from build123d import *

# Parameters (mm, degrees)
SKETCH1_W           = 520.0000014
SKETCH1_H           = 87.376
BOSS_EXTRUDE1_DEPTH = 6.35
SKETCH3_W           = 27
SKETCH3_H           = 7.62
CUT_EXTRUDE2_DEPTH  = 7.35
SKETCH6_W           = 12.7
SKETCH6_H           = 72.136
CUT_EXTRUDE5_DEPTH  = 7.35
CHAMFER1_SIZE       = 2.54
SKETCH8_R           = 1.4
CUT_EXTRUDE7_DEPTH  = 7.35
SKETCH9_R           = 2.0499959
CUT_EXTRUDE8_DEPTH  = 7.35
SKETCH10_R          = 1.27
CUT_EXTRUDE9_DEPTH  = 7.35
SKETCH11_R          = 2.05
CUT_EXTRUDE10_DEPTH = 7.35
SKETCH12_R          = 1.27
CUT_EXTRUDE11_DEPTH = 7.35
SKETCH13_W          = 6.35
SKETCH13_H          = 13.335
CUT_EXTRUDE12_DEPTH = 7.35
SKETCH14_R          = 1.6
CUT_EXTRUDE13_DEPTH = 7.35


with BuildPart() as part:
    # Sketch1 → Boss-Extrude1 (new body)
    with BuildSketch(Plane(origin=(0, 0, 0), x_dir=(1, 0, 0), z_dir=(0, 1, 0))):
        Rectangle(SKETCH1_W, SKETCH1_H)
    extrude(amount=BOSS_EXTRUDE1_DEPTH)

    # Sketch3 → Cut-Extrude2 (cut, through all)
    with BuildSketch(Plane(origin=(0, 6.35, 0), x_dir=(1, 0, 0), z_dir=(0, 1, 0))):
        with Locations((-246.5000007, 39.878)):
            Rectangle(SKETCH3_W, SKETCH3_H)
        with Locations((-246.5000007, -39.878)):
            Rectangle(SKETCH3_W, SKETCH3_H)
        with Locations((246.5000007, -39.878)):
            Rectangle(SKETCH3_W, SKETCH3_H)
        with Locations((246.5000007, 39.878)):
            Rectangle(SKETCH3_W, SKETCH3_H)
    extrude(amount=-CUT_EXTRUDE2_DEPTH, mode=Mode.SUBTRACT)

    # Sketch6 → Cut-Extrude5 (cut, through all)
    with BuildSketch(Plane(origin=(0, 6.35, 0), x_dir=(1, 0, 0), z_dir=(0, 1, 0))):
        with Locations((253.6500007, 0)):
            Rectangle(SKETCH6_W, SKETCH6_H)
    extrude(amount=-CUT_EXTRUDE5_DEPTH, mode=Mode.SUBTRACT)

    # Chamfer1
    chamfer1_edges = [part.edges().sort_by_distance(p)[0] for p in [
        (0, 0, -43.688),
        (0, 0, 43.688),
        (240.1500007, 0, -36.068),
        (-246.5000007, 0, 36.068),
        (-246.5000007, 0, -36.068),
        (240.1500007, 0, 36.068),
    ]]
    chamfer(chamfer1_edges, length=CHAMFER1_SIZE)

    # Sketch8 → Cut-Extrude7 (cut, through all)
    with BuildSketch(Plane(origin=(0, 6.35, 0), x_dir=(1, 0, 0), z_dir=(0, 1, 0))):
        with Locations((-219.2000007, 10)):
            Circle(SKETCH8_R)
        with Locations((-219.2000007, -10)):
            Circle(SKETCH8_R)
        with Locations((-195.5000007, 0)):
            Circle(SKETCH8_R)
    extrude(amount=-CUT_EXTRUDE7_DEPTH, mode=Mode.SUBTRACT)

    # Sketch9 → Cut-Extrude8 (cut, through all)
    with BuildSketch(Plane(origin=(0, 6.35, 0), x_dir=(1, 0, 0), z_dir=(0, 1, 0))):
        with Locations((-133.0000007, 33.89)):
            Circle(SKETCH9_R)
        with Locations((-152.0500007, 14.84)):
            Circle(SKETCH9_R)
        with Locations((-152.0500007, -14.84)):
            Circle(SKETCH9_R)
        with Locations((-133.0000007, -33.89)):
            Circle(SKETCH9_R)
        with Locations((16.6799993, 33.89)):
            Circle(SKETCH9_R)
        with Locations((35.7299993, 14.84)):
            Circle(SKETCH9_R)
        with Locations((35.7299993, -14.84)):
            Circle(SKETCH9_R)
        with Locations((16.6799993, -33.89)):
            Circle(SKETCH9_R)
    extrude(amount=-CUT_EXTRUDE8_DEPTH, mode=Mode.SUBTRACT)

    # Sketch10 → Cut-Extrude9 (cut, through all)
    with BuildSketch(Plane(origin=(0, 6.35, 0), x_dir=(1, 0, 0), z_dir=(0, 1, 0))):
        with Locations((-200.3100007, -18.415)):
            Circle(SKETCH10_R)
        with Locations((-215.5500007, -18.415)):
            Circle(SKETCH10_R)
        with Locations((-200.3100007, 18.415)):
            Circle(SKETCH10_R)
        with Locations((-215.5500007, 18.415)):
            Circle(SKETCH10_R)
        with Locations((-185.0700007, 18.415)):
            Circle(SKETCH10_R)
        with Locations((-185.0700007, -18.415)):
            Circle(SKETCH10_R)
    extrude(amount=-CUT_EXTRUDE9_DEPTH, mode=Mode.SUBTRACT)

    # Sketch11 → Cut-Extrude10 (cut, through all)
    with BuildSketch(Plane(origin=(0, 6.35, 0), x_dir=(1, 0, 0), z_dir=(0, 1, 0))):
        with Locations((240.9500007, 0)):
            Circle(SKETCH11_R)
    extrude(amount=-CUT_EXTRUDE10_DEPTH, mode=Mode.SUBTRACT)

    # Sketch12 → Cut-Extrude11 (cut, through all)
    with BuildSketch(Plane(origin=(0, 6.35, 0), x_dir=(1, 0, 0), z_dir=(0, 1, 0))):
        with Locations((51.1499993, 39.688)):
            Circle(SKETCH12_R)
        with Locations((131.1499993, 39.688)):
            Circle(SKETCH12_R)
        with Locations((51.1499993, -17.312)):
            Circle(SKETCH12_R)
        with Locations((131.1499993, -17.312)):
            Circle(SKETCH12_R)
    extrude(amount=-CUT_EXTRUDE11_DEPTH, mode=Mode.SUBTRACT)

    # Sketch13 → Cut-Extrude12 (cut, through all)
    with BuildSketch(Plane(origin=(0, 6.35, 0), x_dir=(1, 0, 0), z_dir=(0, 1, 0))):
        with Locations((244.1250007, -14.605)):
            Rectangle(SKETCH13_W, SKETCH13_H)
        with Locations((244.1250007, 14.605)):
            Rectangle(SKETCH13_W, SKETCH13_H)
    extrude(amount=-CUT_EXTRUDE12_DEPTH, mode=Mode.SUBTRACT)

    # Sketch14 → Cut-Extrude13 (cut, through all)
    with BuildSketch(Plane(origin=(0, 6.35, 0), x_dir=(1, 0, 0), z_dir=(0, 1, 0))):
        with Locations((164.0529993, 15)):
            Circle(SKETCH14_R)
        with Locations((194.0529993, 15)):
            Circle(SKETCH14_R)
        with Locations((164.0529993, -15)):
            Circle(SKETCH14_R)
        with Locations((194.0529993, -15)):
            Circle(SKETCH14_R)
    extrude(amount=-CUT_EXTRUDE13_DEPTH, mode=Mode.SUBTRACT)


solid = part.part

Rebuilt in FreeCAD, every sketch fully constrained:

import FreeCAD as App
import Part
import Sketcher
Q = App.Units.Quantity


def edges_at(feature, points):
    """Names of the edges that pass closest to the given points."""
    edges = feature.Shape.Edges
    near = lambda p: min(range(len(edges)), key=lambda i: edges[i].distToShape(Part.Vertex(*p))[0])
    return sorted({f"Edge{near(p) + 1}" for p in points})


def add_polygon(sketch, points):
    """Adds a closed chain of lines whose ends are joined by coincident constraints."""
    first, n = sketch.GeometryCount, len(points)
    for a, b in zip(points, points[1:] + points[:1]):
        sketch.addGeometry(Part.LineSegment(App.Vector(*a, 0), App.Vector(*b, 0)), False)
    for i in range(n):
        sketch.addConstraint(Sketcher.Constraint("Coincident", first + i, 2, first + (i + 1) % n, 1))

doc = App.newDocument("Part")
body = doc.addObject("PartDesign::Body", "Body")

# Sketch on XZ plane
sketch1 = body.newObject("Sketcher::SketchObject", "Sketch")
sketch1.AttachmentSupport = (doc.getObject("XZ_Plane"), [""])
sketch1.MapMode = "FlatFace"
add_polygon(sketch1, [(-260, -44), (-260, 44), (260, 44), (260, -44)])  # lines 0-3
sketch1.addConstraint([
    Sketcher.Constraint("Vertical", 0),
    Sketcher.Constraint("Horizontal", 1),
    Sketcher.Constraint("Vertical", 2),
    Sketcher.Constraint("Horizontal", 3),
    Sketcher.Constraint("Symmetric", 0, 2, 2, 2, -1, 1),
    Sketcher.Constraint("DistanceY", 0, 1, 0, 2, Q("3.44 in")),
    Sketcher.Constraint("DistanceX", 1, 1, 1, 2, Q("520.000001 mm")),
])
pad1 = body.newObject("PartDesign::Pad", "Pad")
pad1.Profile = sketch1
pad1.Length = Q("0.25 in")
pad1.Reversed = True

# Sketch on XZ plane
sketch2 = body.newObject("Sketcher::SketchObject", "Sketch001")
sketch2.AttachmentSupport = (doc.getObject("XZ_Plane"), [""])
sketch2.MapMode = "FlatFace"
sketch2.AttachmentOffset = App.Placement(App.Vector(0, 0, -0.25 * 25.4), App.Rotation())
add_polygon(sketch2, [(-260, -44), (-260, -36), (-233, -36), (-233, -44)])  # lines 0-3
add_polygon(sketch2, [(-260, 36), (-260, 44), (-233, 44), (-233, 36)])  # lines 4-7
add_polygon(sketch2, [(233, 36), (233, 44), (260, 44), (260, 36)])  # lines 8-11
add_polygon(sketch2, [(233, -44), (233, -36), (260, -36), (260, -44)])  # lines 12-15
sketch2.addConstraint([
    Sketcher.Constraint("Vertical", 0),
    Sketcher.Constraint("Horizontal", 1),
    Sketcher.Constraint("Vertical", 2),
    Sketcher.Constraint("Horizontal", 3),
    Sketcher.Constraint("Vertical", 4),
    Sketcher.Constraint("Horizontal", 5),
    Sketcher.Constraint("Vertical", 6),
    Sketcher.Constraint("Horizontal", 7),
    Sketcher.Constraint("Vertical", 8),
    Sketcher.Constraint("Horizontal", 9),
    Sketcher.Constraint("Vertical", 10),
    Sketcher.Constraint("Horizontal", 11),
    Sketcher.Constraint("Vertical", 12),
    Sketcher.Constraint("Horizontal", 13),
    Sketcher.Constraint("Vertical", 14),
    Sketcher.Constraint("Horizontal", 15),
    Sketcher.Constraint("Symmetric", 2, 2, 8, 2, -1, 1),
    Sketcher.Constraint("Symmetric", 0, 2, 10, 2, -1, 1),
    Sketcher.Constraint("Symmetric", 6, 2, 12, 2, -1, 1),
    Sketcher.Constraint("Symmetric", 4, 2, 14, 2, -1, 1),
    Sketcher.Constraint("Symmetric", 5, 2, 8, 2, -2),
    Sketcher.Constraint("Symmetric", 7, 2, 10, 2, -2),
    Sketcher.Constraint("DistanceY", 0, 1, 0, 2, Q("0.3 in")),
    Sketcher.Constraint("DistanceY", 0, 2, -1, 1, Q("1.42 in")),
    Sketcher.Constraint("DistanceX", 1, 1, 1, 2, Q("27 mm")),
    Sketcher.Constraint("DistanceX", 0, 2, -1, 1, Q("260.000001 mm")),
])
pocket1 = body.newObject("PartDesign::Pocket", "Pocket")
pocket1.Profile = sketch2
pocket1.Type = "ThroughAll"
pocket1.Reversed = True

# Sketch on XZ plane
sketch3 = body.newObject("Sketcher::SketchObject", "Sketch002")
sketch3.AttachmentSupport = (doc.getObject("XZ_Plane"), [""])
sketch3.MapMode = "FlatFace"
sketch3.AttachmentOffset = App.Placement(App.Vector(0, 0, -0.25 * 25.4), App.Rotation())
add_polygon(sketch3, [(247, -36), (247, 36), (260, 36), (260, -36)])  # lines 0-3
sketch3.addConstraint([
    Sketcher.Constraint("Vertical", 0),
    Sketcher.Constraint("Horizontal", 1),
    Sketcher.Constraint("Vertical", 2),
    Sketcher.Constraint("Horizontal", 3),
    Sketcher.Constraint("DistanceX", 1, 1, 1, 2, Q("0.5 in")),
    Sketcher.Constraint("DistanceY", 0, 1, 0, 2, Q("2.84 in")),
    Sketcher.Constraint("DistanceY", -1, 1, 0, 2, Q("1.42 in")),
    Sketcher.Constraint("DistanceX", -1, 1, 0, 2, Q("247.300001 mm")),
])
pocket2 = body.newObject("PartDesign::Pocket", "Pocket001")
pocket2.Profile = sketch3
pocket2.Type = "ThroughAll"
pocket2.Reversed = True
doc.recompute()

chamfer = body.newObject("PartDesign::Chamfer", "Chamfer")
chamfer.Base = (pocket2, edges_at(pocket2, [
    (0, 0, -43.688),
    (0, 0, 43.688),
    (240.15, 0, -36.068),
    (-246.5, 0, 36.068),
    (-246.5, 0, -36.068),
    (240.15, 0, 36.068),
]))
chamfer.Size = Q("0.1 in")

# Sketch on XZ plane
sketch4 = body.newObject("Sketcher::SketchObject", "Sketch003")
sketch4.AttachmentSupport = (doc.getObject("XZ_Plane"), [""])
sketch4.MapMode = "FlatFace"
sketch4.AttachmentOffset = App.Placement(App.Vector(0, 0, -0.25 * 25.4), App.Rotation())
sketch4.addGeometry([
    Part.Circle(App.Vector(-219.2, -10, 0), App.Vector(0, 0, 1), 1.4),
    Part.Circle(App.Vector(-219.2, 10, 0), App.Vector(0, 0, 1), 1.4),
    Part.Circle(App.Vector(-195.5, 0, 0), App.Vector(0, 0, 1), 1.4),
], False)
sketch4.addConstraint([
    Sketcher.Constraint("Equal", 0, 1),
    Sketcher.Constraint("Equal", 1, 2),
    Sketcher.Constraint("Symmetric", 0, 3, 1, 3, -1),
    Sketcher.Constraint("PointOnObject", 2, 3, -1),
    Sketcher.Constraint("Diameter", 0, Q("2.8 mm")),
    Sketcher.Constraint("DistanceX", 0, 3, -1, 1, Q("219.200001 mm")),
    Sketcher.Constraint("DistanceY", 0, 3, -1, 1, Q("10 mm")),
    Sketcher.Constraint("DistanceX", 2, 3, -1, 1, Q("195.500001 mm")),
])
pocket3 = body.newObject("PartDesign::Pocket", "Pocket002")
pocket3.Profile = sketch4
pocket3.Type = "ThroughAll"
pocket3.Reversed = True

# Sketch on XZ plane
sketch5 = body.newObject("Sketcher::SketchObject", "Sketch004")
sketch5.AttachmentSupport = (doc.getObject("XZ_Plane"), [""])
sketch5.MapMode = "FlatFace"
sketch5.AttachmentOffset = App.Placement(App.Vector(0, 0, -0.25 * 25.4), App.Rotation())
sketch5.addGeometry([
    Part.Circle(App.Vector(-133, -33.9, 0), App.Vector(0, 0, 1), 2),  # 0
    Part.Circle(App.Vector(-152.1, -14.8, 0), App.Vector(0, 0, 1), 2),  # 1
    Part.Circle(App.Vector(-152.1, 14.8, 0), App.Vector(0, 0, 1), 2),  # 2
    Part.Circle(App.Vector(-133, 33.9, 0), App.Vector(0, 0, 1), 2),  # 3
    Part.Circle(App.Vector(16.7, -33.9, 0), App.Vector(0, 0, 1), 2),  # 4
    Part.Circle(App.Vector(35.7, -14.8, 0), App.Vector(0, 0, 1), 2),  # 5
    Part.Circle(App.Vector(35.7, 14.8, 0), App.Vector(0, 0, 1), 2),  # 6
    Part.Circle(App.Vector(16.7, 33.9, 0), App.Vector(0, 0, 1), 2),  # 7
], False)
sketch5.addConstraint([
    Sketcher.Constraint("Equal", 0, 1),
    Sketcher.Constraint("Equal", 1, 2),
    Sketcher.Constraint("Equal", 2, 3),
    Sketcher.Constraint("Equal", 3, 4),
    Sketcher.Constraint("Equal", 4, 5),
    Sketcher.Constraint("Equal", 5, 6),
    Sketcher.Constraint("Equal", 6, 7),
    Sketcher.Constraint("Symmetric", 1, 3, 2, 3, -1),
    Sketcher.Constraint("Symmetric", 0, 3, 3, 3, -1),
    Sketcher.Constraint("Symmetric", 5, 3, 6, 3, -1),
    Sketcher.Constraint("Symmetric", 4, 3, 7, 3, -1),
    Sketcher.Constraint("Horizontal", 0, 3, 4, 3),
    Sketcher.Constraint("Horizontal", 1, 3, 5, 3),
    Sketcher.Constraint("DistanceX", 1, 3, 0, 3, Q("0.75 in")),
    Sketcher.Constraint("DistanceY", 0, 3, 1, 3, Q("0.75 in")),
    Sketcher.Constraint("DistanceX", 4, 3, 5, 3, Q("0.75 in")),
    Sketcher.Constraint("Diameter", 0, Q("4.099992 mm")),
    Sketcher.Constraint("DistanceX", 0, 3, -1, 1, Q("133.000001 mm")),
    Sketcher.Constraint("DistanceY", 0, 3, -1, 1, Q("33.89 mm")),
    Sketcher.Constraint("DistanceX", -1, 1, 4, 3, Q("16.679999 mm")),
])
pocket4 = body.newObject("PartDesign::Pocket", "Pocket003")
pocket4.Profile = sketch5
pocket4.Type = "ThroughAll"
pocket4.Reversed = True

# Sketch on XZ plane
sketch6 = body.newObject("Sketcher::SketchObject", "Sketch005")
sketch6.AttachmentSupport = (doc.getObject("XZ_Plane"), [""])
sketch6.MapMode = "FlatFace"
sketch6.AttachmentOffset = App.Placement(App.Vector(0, 0, -0.25 * 25.4), App.Rotation())
sketch6.addGeometry([
    Part.Circle(App.Vector(-200.3, 18.4, 0), App.Vector(0, 0, 1), 1.3),  # 0
    Part.Circle(App.Vector(-215.6, 18.4, 0), App.Vector(0, 0, 1), 1.3),  # 1
    Part.Circle(App.Vector(-200.3, -18.4, 0), App.Vector(0, 0, 1), 1.3),  # 2
    Part.Circle(App.Vector(-215.6, -18.4, 0), App.Vector(0, 0, 1), 1.3),  # 3
    Part.Circle(App.Vector(-185.1, -18.4, 0), App.Vector(0, 0, 1), 1.3),  # 4
    Part.Circle(App.Vector(-185.1, 18.4, 0), App.Vector(0, 0, 1), 1.3),  # 5
], False)
sketch6.addConstraint([
    Sketcher.Constraint("Equal", 0, 1),
    Sketcher.Constraint("Equal", 1, 2),
    Sketcher.Constraint("Equal", 2, 3),
    Sketcher.Constraint("Equal", 3, 4),
    Sketcher.Constraint("Equal", 4, 5),
    Sketcher.Constraint("Symmetric", 0, 3, 2, 3, -1),
    Sketcher.Constraint("Symmetric", 1, 3, 3, 3, -1),
    Sketcher.Constraint("Symmetric", 4, 3, 5, 3, -1),
    Sketcher.Constraint("Horizontal", 0, 3, 1, 3),
    Sketcher.Constraint("Horizontal", 3, 3, 4, 3),
    Sketcher.Constraint("Diameter", 0, Q("0.1 in")),
    Sketcher.Constraint("DistanceX", 1, 3, 0, 3, Q("0.6 in")),
    Sketcher.Constraint("DistanceX", 2, 3, 4, 3, Q("0.6 in")),
    Sketcher.Constraint("DistanceY", 2, 3, 0, 3, Q("1.45 in")),
    Sketcher.Constraint("DistanceX", 0, 3, -1, 1, Q("200.310001 mm")),
])
pocket5 = body.newObject("PartDesign::Pocket", "Pocket004")
pocket5.Profile = sketch6
pocket5.Type = "ThroughAll"
pocket5.Reversed = True

# Sketch on XZ plane
sketch7 = body.newObject("Sketcher::SketchObject", "Sketch006")
sketch7.AttachmentSupport = (doc.getObject("XZ_Plane"), [""])
sketch7.MapMode = "FlatFace"
sketch7.AttachmentOffset = App.Placement(App.Vector(0, 0, -0.25 * 25.4), App.Rotation())
sketch7.addGeometry(Part.Circle(App.Vector(241, 0, 0), App.Vector(0, 0, 1), 2), False)
sketch7.addConstraint([
    Sketcher.Constraint("PointOnObject", 0, 3, -1),
    Sketcher.Constraint("Diameter", 0, Q("4.1 mm")),
    Sketcher.Constraint("DistanceX", -1, 1, 0, 3, Q("240.950001 mm")),
])
pocket6 = body.newObject("PartDesign::Pocket", "Pocket005")
pocket6.Profile = sketch7
pocket6.Type = "ThroughAll"
pocket6.Reversed = True

# Sketch on XZ plane
sketch8 = body.newObject("Sketcher::SketchObject", "Sketch007")
sketch8.AttachmentSupport = (doc.getObject("XZ_Plane"), [""])
sketch8.MapMode = "FlatFace"
sketch8.AttachmentOffset = App.Placement(App.Vector(0, 0, -0.25 * 25.4), App.Rotation())
sketch8.addGeometry([
    Part.Circle(App.Vector(51.1, -39.7, 0), App.Vector(0, 0, 1), 1.3),
    Part.Circle(App.Vector(131.1, -39.7, 0), App.Vector(0, 0, 1), 1.3),
    Part.Circle(App.Vector(51.1, 17.3, 0), App.Vector(0, 0, 1), 1.3),
    Part.Circle(App.Vector(131.1, 17.3, 0), App.Vector(0, 0, 1), 1.3),
], False)
sketch8.addConstraint([
    Sketcher.Constraint("Equal", 0, 1),
    Sketcher.Constraint("Equal", 1, 2),
    Sketcher.Constraint("Equal", 2, 3),
    Sketcher.Constraint("Horizontal", 0, 3, 1, 3),
    Sketcher.Constraint("Horizontal", 2, 3, 3, 3),
    Sketcher.Constraint("Vertical", 0, 3, 2, 3),
    Sketcher.Constraint("Vertical", 1, 3, 3, 3),
    Sketcher.Constraint("Diameter", 0, Q("0.1 in")),
    Sketcher.Constraint("DistanceX", -1, 1, 0, 3, Q("51.149999 mm")),
    Sketcher.Constraint("DistanceY", 0, 3, -1, 1, Q("39.688 mm")),
    Sketcher.Constraint("DistanceX", -1, 1, 1, 3, Q("131.149999 mm")),
    Sketcher.Constraint("DistanceY", -1, 1, 2, 3, Q("17.312 mm")),
])
pocket7 = body.newObject("PartDesign::Pocket", "Pocket006")
pocket7.Profile = sketch8
pocket7.Type = "ThroughAll"
pocket7.Reversed = True

# Sketch on XZ plane
sketch9 = body.newObject("Sketcher::SketchObject", "Sketch008")
sketch9.AttachmentSupport = (doc.getObject("XZ_Plane"), [""])
sketch9.MapMode = "FlatFace"
sketch9.AttachmentOffset = App.Placement(App.Vector(0, 0, -0.25 * 25.4), App.Rotation())
add_polygon(sketch9, [(241, 8), (241, 21), (247, 21), (247, 8)])  # lines 0-3
add_polygon(sketch9, [(241, -21), (241, -8), (247, -8), (247, -21)])  # lines 4-7
sketch9.addConstraint([
    Sketcher.Constraint("Vertical", 0),
    Sketcher.Constraint("Horizontal", 1),
    Sketcher.Constraint("Vertical", 2),
    Sketcher.Constraint("Horizontal", 3),
    Sketcher.Constraint("Vertical", 4),
    Sketcher.Constraint("Horizontal", 5),
    Sketcher.Constraint("Vertical", 6),
    Sketcher.Constraint("Horizontal", 7),
    Sketcher.Constraint("Symmetric", 3, 2, 4, 2, -1),
    Sketcher.Constraint("Symmetric", 1, 2, 6, 2, -1),
    Sketcher.Constraint("DistanceX", 1, 1, 1, 2, Q("0.25 in")),
    Sketcher.Constraint("DistanceY", 0, 1, 0, 2, Q("0.525 in")),
    Sketcher.Constraint("DistanceY", 4, 2, 0, 2, Q("1.15 in")),
    Sketcher.Constraint("DistanceX", -1, 1, 0, 2, Q("240.950001 mm")),
])
pocket8 = body.newObject("PartDesign::Pocket", "Pocket007")
pocket8.Profile = sketch9
pocket8.Type = "ThroughAll"
pocket8.Reversed = True

# Sketch on XZ plane
sketch10 = body.newObject("Sketcher::SketchObject", "Sketch009")
sketch10.AttachmentSupport = (doc.getObject("XZ_Plane"), [""])
sketch10.MapMode = "FlatFace"
sketch10.AttachmentOffset = App.Placement(App.Vector(0, 0, -0.25 * 25.4), App.Rotation())
sketch10.addGeometry([
    Part.Circle(App.Vector(164.1, -15, 0), App.Vector(0, 0, 1), 1.6),
    Part.Circle(App.Vector(194.1, -15, 0), App.Vector(0, 0, 1), 1.6),
    Part.Circle(App.Vector(164.1, 15, 0), App.Vector(0, 0, 1), 1.6),
    Part.Circle(App.Vector(194.1, 15, 0), App.Vector(0, 0, 1), 1.6),
], False)
sketch10.addConstraint([
    Sketcher.Constraint("Equal", 0, 1),
    Sketcher.Constraint("Equal", 1, 2),
    Sketcher.Constraint("Equal", 2, 3),
    Sketcher.Constraint("Symmetric", 0, 3, 2, 3, -1),
    Sketcher.Constraint("Symmetric", 1, 3, 3, 3, -1),
    Sketcher.Constraint("Horizontal", 0, 3, 1, 3),
    Sketcher.Constraint("Diameter", 0, Q("3.2 mm")),
    Sketcher.Constraint("DistanceX", -1, 1, 0, 3, Q("164.052999 mm")),
    Sketcher.Constraint("DistanceY", 0, 3, -1, 1, Q("15 mm")),
    Sketcher.Constraint("DistanceX", -1, 1, 1, 3, Q("194.052999 mm")),
])
pocket9 = body.newObject("PartDesign::Pocket", "Pocket008")
pocket9.Profile = sketch10
pocket9.Type = "ThroughAll"
pocket9.Reversed = True

doc.recompute()
